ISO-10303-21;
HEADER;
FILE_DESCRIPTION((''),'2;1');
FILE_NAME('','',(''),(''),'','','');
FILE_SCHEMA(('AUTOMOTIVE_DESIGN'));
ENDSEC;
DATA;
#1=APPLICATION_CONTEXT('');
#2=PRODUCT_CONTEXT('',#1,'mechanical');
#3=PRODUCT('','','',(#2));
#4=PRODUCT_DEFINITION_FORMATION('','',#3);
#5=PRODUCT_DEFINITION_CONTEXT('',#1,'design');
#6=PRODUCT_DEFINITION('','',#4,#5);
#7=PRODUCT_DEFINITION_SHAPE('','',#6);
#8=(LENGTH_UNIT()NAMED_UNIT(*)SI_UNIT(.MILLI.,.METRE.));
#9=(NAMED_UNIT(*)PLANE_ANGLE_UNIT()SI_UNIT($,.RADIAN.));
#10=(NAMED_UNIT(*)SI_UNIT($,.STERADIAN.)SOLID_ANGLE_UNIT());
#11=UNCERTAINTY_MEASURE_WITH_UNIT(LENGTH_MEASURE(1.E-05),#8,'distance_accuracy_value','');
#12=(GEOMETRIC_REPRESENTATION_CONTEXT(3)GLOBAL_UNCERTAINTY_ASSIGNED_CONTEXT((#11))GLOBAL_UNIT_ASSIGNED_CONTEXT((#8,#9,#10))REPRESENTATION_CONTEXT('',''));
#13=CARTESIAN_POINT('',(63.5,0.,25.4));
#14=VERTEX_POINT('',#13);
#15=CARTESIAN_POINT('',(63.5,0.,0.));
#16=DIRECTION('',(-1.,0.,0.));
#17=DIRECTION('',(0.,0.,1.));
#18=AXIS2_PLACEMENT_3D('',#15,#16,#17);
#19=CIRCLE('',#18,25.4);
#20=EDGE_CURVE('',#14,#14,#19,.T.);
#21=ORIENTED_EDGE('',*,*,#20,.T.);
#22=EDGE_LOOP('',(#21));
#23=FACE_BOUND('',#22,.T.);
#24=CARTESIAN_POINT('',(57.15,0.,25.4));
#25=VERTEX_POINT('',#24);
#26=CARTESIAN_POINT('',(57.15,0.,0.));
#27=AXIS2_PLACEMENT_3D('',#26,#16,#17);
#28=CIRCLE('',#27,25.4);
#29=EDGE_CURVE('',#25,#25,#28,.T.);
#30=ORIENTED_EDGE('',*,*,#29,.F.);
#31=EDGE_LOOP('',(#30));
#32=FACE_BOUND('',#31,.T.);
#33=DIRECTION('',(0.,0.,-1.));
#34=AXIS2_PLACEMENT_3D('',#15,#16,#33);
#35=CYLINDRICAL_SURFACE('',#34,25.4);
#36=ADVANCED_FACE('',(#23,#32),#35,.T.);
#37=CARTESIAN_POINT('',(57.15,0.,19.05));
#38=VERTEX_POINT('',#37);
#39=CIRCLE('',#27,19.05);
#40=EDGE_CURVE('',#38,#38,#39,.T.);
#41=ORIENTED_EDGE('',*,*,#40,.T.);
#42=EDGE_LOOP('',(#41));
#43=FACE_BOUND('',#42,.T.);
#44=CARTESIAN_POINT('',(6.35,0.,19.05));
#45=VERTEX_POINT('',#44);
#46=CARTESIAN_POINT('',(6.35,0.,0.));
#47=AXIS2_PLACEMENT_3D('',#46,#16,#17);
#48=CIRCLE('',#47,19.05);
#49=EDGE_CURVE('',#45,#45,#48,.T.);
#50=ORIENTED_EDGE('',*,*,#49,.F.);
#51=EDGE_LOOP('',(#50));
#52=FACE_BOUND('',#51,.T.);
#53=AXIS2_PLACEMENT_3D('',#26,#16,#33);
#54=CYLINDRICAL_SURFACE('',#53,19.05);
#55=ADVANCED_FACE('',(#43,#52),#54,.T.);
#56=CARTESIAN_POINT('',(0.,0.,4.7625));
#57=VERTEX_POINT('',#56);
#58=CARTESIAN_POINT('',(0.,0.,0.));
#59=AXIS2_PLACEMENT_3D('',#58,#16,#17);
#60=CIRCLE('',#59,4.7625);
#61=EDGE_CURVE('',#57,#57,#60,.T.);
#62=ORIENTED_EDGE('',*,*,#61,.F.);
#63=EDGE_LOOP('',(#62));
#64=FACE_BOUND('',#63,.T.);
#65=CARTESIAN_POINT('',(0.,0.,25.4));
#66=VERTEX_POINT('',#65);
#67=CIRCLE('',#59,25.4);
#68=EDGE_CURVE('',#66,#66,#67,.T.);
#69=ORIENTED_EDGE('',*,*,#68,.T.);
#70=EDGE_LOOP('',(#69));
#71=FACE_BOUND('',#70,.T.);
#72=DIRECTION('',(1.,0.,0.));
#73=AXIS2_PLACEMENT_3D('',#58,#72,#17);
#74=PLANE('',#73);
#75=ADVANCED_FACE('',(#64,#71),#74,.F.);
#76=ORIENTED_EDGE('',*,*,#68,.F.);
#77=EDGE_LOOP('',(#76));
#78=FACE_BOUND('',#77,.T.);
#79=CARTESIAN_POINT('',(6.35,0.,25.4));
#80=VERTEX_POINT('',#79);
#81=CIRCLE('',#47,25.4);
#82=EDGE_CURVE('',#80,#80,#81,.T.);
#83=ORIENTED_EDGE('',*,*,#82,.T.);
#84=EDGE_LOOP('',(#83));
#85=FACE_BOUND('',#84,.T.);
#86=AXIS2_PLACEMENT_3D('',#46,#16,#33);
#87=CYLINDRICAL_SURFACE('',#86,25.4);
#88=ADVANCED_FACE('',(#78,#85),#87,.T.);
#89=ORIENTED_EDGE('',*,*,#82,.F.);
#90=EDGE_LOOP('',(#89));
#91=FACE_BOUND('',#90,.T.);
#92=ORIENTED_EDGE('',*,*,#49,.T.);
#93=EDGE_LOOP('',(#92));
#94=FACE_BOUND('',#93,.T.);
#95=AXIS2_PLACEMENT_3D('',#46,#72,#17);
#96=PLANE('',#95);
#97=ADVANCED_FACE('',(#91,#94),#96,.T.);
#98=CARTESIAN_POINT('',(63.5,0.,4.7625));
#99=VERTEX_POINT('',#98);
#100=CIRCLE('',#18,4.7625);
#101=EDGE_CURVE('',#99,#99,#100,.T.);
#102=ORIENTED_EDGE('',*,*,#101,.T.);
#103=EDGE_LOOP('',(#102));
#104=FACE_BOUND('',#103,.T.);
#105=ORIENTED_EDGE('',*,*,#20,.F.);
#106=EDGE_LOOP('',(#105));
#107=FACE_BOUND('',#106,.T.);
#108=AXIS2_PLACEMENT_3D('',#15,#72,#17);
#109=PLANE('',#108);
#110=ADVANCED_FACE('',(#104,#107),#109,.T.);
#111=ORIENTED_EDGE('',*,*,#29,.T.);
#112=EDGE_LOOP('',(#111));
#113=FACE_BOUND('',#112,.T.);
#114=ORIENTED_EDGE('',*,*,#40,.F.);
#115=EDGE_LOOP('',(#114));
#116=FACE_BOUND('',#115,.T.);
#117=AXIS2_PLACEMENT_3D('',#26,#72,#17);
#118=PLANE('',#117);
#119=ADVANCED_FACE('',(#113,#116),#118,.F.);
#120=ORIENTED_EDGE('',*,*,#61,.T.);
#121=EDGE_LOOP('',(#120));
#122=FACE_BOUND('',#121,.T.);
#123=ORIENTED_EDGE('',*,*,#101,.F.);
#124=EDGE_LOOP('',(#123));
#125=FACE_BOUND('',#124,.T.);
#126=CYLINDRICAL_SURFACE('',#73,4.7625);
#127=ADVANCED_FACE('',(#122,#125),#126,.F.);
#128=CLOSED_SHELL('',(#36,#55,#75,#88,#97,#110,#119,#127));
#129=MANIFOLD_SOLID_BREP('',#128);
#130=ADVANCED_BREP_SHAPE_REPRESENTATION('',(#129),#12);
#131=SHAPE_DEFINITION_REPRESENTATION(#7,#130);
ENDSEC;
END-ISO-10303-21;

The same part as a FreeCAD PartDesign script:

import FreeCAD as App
import Part
import Sketcher
Q = App.Units.Quantity

doc = App.newDocument("Part")
body = doc.addObject("PartDesign::Body", "Body")

# Sketch on YZ plane
sketch1 = body.newObject("Sketcher::SketchObject", "Sketch")
sketch1.AttachmentSupport = (doc.getObject("YZ_Plane"), [""])
sketch1.MapMode = "FlatFace"
sketch1.addGeometry(Part.Circle(App.Vector(0, 0, 0), App.Vector(0, 0, 1), 25), False)
sketch1.addConstraint(Sketcher.Constraint("Coincident", 0, 3, -1, 1))
sketch1.addConstraint(Sketcher.Constraint("Diameter", 0, Q("2 in")))
pad1 = body.newObject("PartDesign::Pad", "Pad")
pad1.Profile = sketch1
pad1.Length = Q("0.25 in")

# Sketch on YZ plane
sketch2 = body.newObject("Sketcher::SketchObject", "Sketch001")
sketch2.AttachmentSupport = (doc.getObject("YZ_Plane"), [""])
sketch2.MapMode = "FlatFace"
sketch2.AttachmentOffset = App.Placement(App.Vector(0, 0, 0.25 * 25.4), App.Rotation())
sketch2.addGeometry(Part.Circle(App.Vector(0, 0, 0), App.Vector(0, 0, 1), 19), False)
sketch2.addConstraint(Sketcher.Constraint("Coincident", 0, 3, -1, 1))
sketch2.addConstraint(Sketcher.Constraint("Diameter", 0, Q("1.5 in")))
pad2 = body.newObject("PartDesign::Pad", "Pad001")
pad2.Profile = sketch2
pad2.Length = Q("2 in")

# Sketch on YZ plane
sketch3 = body.newObject("Sketcher::SketchObject", "Sketch002")
sketch3.AttachmentSupport = (doc.getObject("YZ_Plane"), [""])
sketch3.MapMode = "FlatFace"
sketch3.AttachmentOffset = App.Placement(App.Vector(0, 0, 2.25 * 25.4), App.Rotation())
sketch3.addGeometry(Part.Circle(App.Vector(0, 0, 0), App.Vector(0, 0, 1), 25), False)
sketch3.addConstraint(Sketcher.Constraint("Coincident", 0, 3, -1, 1))
sketch3.addConstraint(Sketcher.Constraint("Diameter", 0, Q("2 in")))
pad3 = body.newObject("PartDesign::Pad", "Pad002")
pad3.Profile = sketch3
pad3.Length = Q("0.25 in")

# Sketch on YZ plane
sketch4 = body.newObject("Sketcher::SketchObject", "Sketch003")
sketch4.AttachmentSupport = (doc.getObject("YZ_Plane"), [""])
sketch4.MapMode = "FlatFace"
sketch4.AttachmentOffset = App.Placement(App.Vector(0, 0, 2.5 * 25.4), App.Rotation())
sketch4.addGeometry(Part.Circle(App.Vector(0, 0, 0), App.Vector(0, 0, 1), 4.8), False)
sketch4.addConstraint(Sketcher.Constraint("Coincident", 0, 3, -1, 1))
sketch4.addConstraint(Sketcher.Constraint("Diameter", 0, Q("0.375 in")))
pocket1 = body.newObject("PartDesign::Pocket", "Pocket")
pocket1.Profile = sketch4
pocket1.Type = "ThroughAll"

doc.recompute()
